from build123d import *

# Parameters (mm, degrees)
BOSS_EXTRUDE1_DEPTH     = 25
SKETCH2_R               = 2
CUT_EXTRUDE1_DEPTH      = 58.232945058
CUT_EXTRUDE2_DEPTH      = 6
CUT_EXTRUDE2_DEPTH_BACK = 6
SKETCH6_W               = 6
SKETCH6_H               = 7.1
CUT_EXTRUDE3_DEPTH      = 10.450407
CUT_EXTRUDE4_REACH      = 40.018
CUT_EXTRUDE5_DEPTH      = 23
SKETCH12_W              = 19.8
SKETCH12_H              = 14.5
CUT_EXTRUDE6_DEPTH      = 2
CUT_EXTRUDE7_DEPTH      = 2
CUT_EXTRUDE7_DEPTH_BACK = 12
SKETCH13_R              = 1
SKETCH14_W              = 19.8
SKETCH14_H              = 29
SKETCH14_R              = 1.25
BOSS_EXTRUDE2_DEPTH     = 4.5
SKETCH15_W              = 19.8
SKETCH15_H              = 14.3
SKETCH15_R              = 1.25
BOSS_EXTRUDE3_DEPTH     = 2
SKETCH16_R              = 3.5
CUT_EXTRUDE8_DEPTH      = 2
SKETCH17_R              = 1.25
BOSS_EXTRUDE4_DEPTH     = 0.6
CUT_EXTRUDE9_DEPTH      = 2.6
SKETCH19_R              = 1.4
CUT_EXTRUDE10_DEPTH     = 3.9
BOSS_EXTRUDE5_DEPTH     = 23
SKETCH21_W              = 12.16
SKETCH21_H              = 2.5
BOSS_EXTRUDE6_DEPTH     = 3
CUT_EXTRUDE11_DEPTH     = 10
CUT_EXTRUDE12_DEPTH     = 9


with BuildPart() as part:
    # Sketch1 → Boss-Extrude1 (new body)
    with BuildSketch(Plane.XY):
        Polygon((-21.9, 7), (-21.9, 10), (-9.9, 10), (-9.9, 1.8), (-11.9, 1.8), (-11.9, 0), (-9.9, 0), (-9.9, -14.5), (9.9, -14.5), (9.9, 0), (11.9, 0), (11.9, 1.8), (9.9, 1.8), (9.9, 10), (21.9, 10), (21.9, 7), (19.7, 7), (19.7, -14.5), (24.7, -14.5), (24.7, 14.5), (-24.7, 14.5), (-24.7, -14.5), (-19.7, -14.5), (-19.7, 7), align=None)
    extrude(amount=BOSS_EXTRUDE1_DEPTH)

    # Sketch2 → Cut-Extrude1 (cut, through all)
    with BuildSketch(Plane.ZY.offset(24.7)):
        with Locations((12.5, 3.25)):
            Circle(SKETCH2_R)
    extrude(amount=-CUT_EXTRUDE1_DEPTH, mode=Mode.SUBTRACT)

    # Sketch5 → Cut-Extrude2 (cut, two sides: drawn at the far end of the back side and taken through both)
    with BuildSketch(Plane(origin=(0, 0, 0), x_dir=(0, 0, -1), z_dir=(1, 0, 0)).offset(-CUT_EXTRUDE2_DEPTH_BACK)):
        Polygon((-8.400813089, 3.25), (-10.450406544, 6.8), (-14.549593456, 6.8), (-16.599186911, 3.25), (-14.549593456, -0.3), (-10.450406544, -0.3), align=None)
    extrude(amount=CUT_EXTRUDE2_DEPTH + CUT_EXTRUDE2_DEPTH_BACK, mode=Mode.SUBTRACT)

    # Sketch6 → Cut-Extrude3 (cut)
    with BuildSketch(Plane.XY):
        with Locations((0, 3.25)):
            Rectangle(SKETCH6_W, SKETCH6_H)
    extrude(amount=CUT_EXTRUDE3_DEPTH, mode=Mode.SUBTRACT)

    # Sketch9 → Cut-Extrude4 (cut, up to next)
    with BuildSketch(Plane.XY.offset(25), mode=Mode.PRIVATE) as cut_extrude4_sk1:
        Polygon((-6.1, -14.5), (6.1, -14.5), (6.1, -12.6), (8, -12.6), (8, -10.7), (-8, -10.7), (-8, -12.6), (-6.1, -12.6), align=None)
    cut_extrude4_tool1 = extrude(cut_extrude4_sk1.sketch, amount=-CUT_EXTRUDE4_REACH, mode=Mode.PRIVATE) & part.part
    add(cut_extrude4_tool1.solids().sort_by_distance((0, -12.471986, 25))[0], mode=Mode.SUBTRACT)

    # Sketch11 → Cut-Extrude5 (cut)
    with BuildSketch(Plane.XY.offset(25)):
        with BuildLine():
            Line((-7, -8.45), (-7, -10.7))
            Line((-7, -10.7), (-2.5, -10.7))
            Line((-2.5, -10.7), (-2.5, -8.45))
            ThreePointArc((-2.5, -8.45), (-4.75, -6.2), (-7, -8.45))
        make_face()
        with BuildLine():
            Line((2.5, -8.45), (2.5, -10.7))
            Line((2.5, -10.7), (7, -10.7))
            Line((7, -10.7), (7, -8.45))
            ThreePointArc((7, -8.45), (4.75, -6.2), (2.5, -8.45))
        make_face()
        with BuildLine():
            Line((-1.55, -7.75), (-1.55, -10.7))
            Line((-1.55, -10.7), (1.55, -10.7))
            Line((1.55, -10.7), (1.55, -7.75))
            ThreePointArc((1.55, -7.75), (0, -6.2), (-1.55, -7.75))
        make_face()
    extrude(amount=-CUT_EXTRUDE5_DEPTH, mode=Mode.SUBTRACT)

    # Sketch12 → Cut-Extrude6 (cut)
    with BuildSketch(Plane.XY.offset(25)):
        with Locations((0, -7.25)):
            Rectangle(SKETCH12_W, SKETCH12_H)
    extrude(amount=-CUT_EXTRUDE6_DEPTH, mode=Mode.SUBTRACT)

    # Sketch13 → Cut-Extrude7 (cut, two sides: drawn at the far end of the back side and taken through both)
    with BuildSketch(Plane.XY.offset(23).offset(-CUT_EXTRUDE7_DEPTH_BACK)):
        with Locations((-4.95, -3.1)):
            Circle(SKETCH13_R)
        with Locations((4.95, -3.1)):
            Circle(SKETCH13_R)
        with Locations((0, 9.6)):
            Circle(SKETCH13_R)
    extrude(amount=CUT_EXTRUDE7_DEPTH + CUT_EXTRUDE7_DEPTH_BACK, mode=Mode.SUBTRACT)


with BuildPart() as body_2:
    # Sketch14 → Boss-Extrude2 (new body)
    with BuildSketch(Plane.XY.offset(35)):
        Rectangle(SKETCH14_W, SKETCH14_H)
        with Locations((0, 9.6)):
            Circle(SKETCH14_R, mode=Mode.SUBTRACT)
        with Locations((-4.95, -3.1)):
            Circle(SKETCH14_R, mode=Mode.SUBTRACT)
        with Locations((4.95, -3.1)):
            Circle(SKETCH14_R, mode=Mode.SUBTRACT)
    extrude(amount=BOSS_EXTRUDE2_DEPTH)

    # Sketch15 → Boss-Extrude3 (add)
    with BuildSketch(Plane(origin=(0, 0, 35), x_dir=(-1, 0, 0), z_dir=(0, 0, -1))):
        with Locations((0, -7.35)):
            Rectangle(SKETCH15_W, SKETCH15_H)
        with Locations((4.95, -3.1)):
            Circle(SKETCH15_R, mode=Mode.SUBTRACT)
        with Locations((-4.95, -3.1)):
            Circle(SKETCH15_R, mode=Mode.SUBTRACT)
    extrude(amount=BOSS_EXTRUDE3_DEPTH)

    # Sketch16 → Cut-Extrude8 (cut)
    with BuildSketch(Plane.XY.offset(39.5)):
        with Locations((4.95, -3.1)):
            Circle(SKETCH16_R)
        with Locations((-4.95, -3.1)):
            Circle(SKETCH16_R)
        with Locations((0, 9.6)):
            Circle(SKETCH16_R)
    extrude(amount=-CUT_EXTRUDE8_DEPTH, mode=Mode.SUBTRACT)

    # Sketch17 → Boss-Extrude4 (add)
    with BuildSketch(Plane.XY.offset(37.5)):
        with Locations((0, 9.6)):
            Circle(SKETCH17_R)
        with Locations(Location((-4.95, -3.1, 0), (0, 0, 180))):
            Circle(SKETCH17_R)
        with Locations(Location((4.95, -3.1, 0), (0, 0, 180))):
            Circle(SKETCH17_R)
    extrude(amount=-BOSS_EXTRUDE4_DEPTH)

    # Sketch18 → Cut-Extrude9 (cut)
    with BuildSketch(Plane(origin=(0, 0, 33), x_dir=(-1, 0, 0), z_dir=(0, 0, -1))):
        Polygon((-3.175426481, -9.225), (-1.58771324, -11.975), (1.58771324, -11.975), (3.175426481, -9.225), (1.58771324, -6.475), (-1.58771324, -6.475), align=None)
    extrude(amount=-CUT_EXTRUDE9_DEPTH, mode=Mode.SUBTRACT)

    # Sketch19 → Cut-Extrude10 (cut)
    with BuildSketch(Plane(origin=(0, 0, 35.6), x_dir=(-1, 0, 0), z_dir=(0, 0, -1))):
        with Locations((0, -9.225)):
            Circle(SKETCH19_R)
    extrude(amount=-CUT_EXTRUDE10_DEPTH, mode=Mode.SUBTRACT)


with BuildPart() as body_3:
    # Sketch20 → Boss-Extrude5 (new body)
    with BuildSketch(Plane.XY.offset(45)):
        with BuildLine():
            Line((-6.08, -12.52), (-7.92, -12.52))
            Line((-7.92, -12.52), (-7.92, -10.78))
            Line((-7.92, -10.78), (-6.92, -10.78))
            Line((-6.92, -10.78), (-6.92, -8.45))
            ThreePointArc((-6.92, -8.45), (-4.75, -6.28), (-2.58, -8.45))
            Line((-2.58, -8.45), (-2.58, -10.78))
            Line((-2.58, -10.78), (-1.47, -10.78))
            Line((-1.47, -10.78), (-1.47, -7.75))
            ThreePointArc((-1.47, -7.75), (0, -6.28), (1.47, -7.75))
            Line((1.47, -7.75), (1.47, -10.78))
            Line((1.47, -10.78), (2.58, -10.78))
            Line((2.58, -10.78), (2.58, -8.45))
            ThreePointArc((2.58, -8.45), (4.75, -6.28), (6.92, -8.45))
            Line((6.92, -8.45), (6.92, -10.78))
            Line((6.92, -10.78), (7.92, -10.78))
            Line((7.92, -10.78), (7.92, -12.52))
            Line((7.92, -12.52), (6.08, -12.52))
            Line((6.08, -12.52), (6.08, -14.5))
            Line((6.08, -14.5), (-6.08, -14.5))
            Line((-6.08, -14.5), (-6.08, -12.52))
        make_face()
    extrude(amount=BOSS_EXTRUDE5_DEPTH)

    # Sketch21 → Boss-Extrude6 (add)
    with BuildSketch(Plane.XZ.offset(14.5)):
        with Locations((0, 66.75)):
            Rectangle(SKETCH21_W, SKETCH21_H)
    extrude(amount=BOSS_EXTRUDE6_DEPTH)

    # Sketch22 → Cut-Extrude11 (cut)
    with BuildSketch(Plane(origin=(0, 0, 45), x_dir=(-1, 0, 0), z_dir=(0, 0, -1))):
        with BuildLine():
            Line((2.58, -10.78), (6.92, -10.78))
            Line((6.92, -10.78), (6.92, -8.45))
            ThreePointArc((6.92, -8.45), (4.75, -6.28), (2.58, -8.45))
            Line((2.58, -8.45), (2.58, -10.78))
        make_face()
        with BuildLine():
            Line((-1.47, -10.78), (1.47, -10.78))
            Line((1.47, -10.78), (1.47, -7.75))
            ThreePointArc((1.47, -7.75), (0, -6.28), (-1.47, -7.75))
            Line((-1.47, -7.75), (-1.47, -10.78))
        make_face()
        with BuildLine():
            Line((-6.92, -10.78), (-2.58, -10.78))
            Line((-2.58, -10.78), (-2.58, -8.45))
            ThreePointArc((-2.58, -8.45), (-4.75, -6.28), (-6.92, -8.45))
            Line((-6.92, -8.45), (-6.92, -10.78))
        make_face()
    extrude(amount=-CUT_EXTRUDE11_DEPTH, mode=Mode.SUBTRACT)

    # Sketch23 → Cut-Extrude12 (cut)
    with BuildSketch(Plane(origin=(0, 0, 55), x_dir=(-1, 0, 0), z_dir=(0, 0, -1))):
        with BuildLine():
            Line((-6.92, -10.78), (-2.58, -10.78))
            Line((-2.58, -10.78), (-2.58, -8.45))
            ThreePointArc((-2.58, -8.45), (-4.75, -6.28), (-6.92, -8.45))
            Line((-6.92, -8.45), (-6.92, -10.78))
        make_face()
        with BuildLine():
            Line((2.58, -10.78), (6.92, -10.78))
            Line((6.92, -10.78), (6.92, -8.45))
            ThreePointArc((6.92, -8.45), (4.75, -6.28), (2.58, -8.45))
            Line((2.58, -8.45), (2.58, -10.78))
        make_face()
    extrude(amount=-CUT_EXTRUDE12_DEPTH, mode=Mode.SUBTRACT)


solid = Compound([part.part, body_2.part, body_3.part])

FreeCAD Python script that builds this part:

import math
import FreeCAD as App
import Part
import Sketcher

V = App.Vector
Q = App.Units.Quantity


def add_polygon(sketch, points):
    """Adds a closed chain of lines whose ends are joined by coincident constraints."""
    first, n = sketch.GeometryCount, len(points)
    for a, b in zip(points, points[1:] + points[:1]):
        sketch.addGeometry(Part.LineSegment(App.Vector(*a, 0), App.Vector(*b, 0)), False)
    for i in range(n):
        sketch.addConstraint(Sketcher.Constraint("Coincident", first + i, 2, first + (i + 1) % n, 1))

doc = App.newDocument("Part")
body = doc.addObject("PartDesign::Body", "Body")

# Sketch on XY plane
sketch1 = body.newObject("Sketcher::SketchObject", "Sketch")
sketch1.AttachmentSupport = (doc.getObject("XY_Plane"), [""])
sketch1.MapMode = "FlatFace"
add_polygon(sketch1, [(-21.9, 7), (-21.9, 10), (-9.9, 10), (-9.9, 1.8), (-11.9, 1.8), (-11.9, 0), (-9.9, 0), (-9.9, -14.5), (9.9, -14.5), (9.9, 0), (11.9, 0), (11.9, 1.8), (9.9, 1.8), (9.9, 10), (21.9, 10), (21.9, 7), (19.7, 7), (19.7, -14.5), (24.7, -14.5), (24.7, 14.5), (-24.7, 14.5), (-24.7, -14.5), (-19.7, -14.5), (-19.7, 7)])  # lines 0-23
sketch1.addConstraint([
    Sketcher.Constraint("Vertical", 0),
    Sketcher.Constraint("Horizontal", 1),
    Sketcher.Constraint("Vertical", 2),
    Sketcher.Constraint("Horizontal", 3),
    Sketcher.Constraint("Vertical", 4),
    Sketcher.Constraint("Horizontal", 5),
    Sketcher.Constraint("Vertical", 6),
    Sketcher.Constraint("Horizontal", 7),
    Sketcher.Constraint("Vertical", 8),
    Sketcher.Constraint("Horizontal", 9),
    Sketcher.Constraint("Vertical", 10),
    Sketcher.Constraint("Horizontal", 11),
    Sketcher.Constraint("Vertical", 12),
    Sketcher.Constraint("Horizontal", 13),
    Sketcher.Constraint("Vertical", 14),
    Sketcher.Constraint("Horizontal", 15),
    Sketcher.Constraint("Vertical", 16),
    Sketcher.Constraint("Horizontal", 17),
    Sketcher.Constraint("Vertical", 18),
    Sketcher.Constraint("Horizontal", 19),
    Sketcher.Constraint("Vertical", 20),
    Sketcher.Constraint("Horizontal", 21),
    Sketcher.Constraint("Vertical", 22),
    Sketcher.Constraint("Horizontal", 23),
    Sketcher.Constraint("Symmetric", 5, 2, 8, 2, -1, 1),
    Sketcher.Constraint("Symmetric", 17, 2, 19, 2, -1, 1),
    Sketcher.Constraint("Symmetric", 4, 2, 9, 2, -2),
    Sketcher.Constraint("Symmetric", 2, 2, 11, 2, -2),
    Sketcher.Constraint("Symmetric", 0, 2, 13, 2, -2),
    Sketcher.Constraint("Symmetric", 16, 2, 21, 2, -2),
    Sketcher.Constraint("Horizontal", 7, 2, 16, 2),
    Sketcher.Constraint("Horizontal", 15, 2, 22, 2),
    Sketcher.Constraint("Vertical", 2, 2, 5, 2),
    Sketcher.Constraint("DistanceX", 1, 1, 1, 2, Q("12 mm")),
    Sketcher.Constraint("DistanceX", 3, 2, 3, 1, Q("2 mm")),
    Sketcher.Constraint("DistanceX", 17, 1, 17, 2, Q("5 mm")),
    Sketcher.Constraint("DistanceY", 0, 1, 0, 2, Q("3 mm")),
    Sketcher.Constraint("DistanceY", 18, 1, 18, 2, Q("29 mm")),
    Sketcher.Constraint("DistanceX", 7, 1, 7, 2, Q("19.8 mm")),
    Sketcher.Constraint("DistanceX", 15, 2, 15, 1, Q("2.2 mm")),
    Sketcher.Constraint("DistanceY", 2, 2, 2, 1, Q("8.2 mm")),
    Sketcher.Constraint("DistanceY", 4, 2, 4, 1, Q("1.8 mm")),
])
pad1 = body.newObject("PartDesign::Pad", "Pad")
pad1.Profile = sketch1
pad1.Length = 25

# Sketch on YZ plane
sketch2 = body.newObject("Sketcher::SketchObject", "Sketch001")
sketch2.AttachmentSupport = (doc.getObject("YZ_Plane"), [""])
sketch2.MapMode = "FlatFace"
sketch2.AttachmentOffset = App.Placement(V(0, 0, -24.7), App.Rotation())
sketch2.addGeometry(Part.Circle(V(3.2, 12.5, 0), V(0, 0, 1), 2), False)
sketch2.addConstraint([
    Sketcher.Constraint("Diameter", 0, Q("4 mm")),
    Sketcher.Constraint("DistanceY", -1, 1, 0, 3, Q("12.5 mm")),
    Sketcher.Constraint("DistanceX", -1, 1, 0, 3, Q("3.25 mm")),
])
pocket1 = body.newObject("PartDesign::Pocket", "Pocket")
pocket1.Profile = sketch2
pocket1.Type = "ThroughAll"
pocket1.Reversed = True

# Sketch on YZ plane
sketch3 = body.newObject("Sketcher::SketchObject", "Sketch002")
sketch3.AttachmentSupport = (doc.getObject("YZ_Plane"), [""])
sketch3.MapMode = "FlatFace"
add_polygon(sketch3, [(3.2, 8.4), (6.8, 10.5), (6.8, 14.5), (3.2, 16.6), (-0.3, 14.5), (-0.3, 10.5)])  # lines 0-5
sketch3.addConstraint([
    Sketcher.Constraint("Vertical", 1),
    Sketcher.Constraint("Vertical", 4),
    Sketcher.Constraint("Parallel", 0, 3),
    Sketcher.Constraint("Parallel", 2, 5),
    Sketcher.Constraint("Horizontal", 1, 2, 3, 2),
    Sketcher.Constraint("Horizontal", 0, 2, 4, 2),
    Sketcher.Constraint("Vertical", 2, 2, 5, 2),
    Sketcher.Constraint("Angle", 0, Q("30 deg")),
    Sketcher.Constraint("DistanceX", -1, 1, 0, 2, Q("6.8 mm")),
    Sketcher.Constraint("DistanceX", 3, 2, -1, 1, Q("0.3 mm")),
    Sketcher.Constraint("DistanceY", 1, 1, 1, 2, Q("4.099187 mm")),
    Sketcher.Constraint("DistanceY", -1, 1, 0, 2, Q("10.450407 mm")),
])
pocket2 = body.newObject("PartDesign::Pocket", "Pocket001")
pocket2.Profile = sketch3
pocket2.Type = "TwoLengths"
pocket2.Length = 6
pocket2.Length2 = 6
pocket2.Reversed = True

# Sketch on XY plane
sketch4 = body.newObject("Sketcher::SketchObject", "Sketch003")
sketch4.AttachmentSupport = (doc.getObject("XY_Plane"), [""])
sketch4.MapMode = "FlatFace"
add_polygon(sketch4, [(-3, 7), (-3, 0), (3, 0), (3, 7)])  # lines 0-3
sketch4.addConstraint([
    Sketcher.Constraint("Vertical", 0),
    Sketcher.Constraint("Horizontal", 1),
    Sketcher.Constraint("Vertical", 2),
    Sketcher.Constraint("Horizontal", 3),
    Sketcher.Constraint("DistanceX", 1, 1, 1, 2, Q("6 mm")),
    Sketcher.Constraint("DistanceY", 0, 2, 0, 1, Q("7.1 mm")),
    Sketcher.Constraint("DistanceX", 0, 2, -1, 1, Q("3 mm")),
    Sketcher.Constraint("DistanceY", 0, 2, -1, 1, Q("0.3 mm")),
])
pocket3 = body.newObject("PartDesign::Pocket", "Pocket002")
pocket3.Profile = sketch4
pocket3.Length = 10.450407
pocket3.Reversed = True

# Sketch on XY plane
sketch5 = body.newObject("Sketcher::SketchObject", "Sketch004")
sketch5.AttachmentSupport = (doc.getObject("XY_Plane"), [""])
sketch5.MapMode = "FlatFace"
sketch5.AttachmentOffset = App.Placement(V(0, 0, 25), App.Rotation())
add_polygon(sketch5, [(-6.1, -14.5), (6.1, -14.5), (6.1, -12.6), (8, -12.6), (8, -10.7), (-8, -10.7), (-8, -12.6), (-6.1, -12.6)])  # lines 0-7
sketch5.addConstraint([
    Sketcher.Constraint("Horizontal", 0),
    Sketcher.Constraint("Vertical", 1),
    Sketcher.Constraint("Horizontal", 2),
    Sketcher.Constraint("Vertical", 3),
    Sketcher.Constraint("Horizontal", 4),
    Sketcher.Constraint("Vertical", 5),
    Sketcher.Constraint("Horizontal", 6),
    Sketcher.Constraint("Vertical", 7),
    Sketcher.Constraint("Symmetric", 2, 2, 5, 2, -2),
    Sketcher.Constraint("Equal", 2, 6),
    Sketcher.Constraint("Equal", 6, 1),
    Sketcher.Constraint("Equal", 1, 3),
    Sketcher.Constraint("DistanceX", 4, 2, 4, 1, Q("16 mm")),
    Sketcher.Constraint("DistanceX", 0, 1, 0, 2, Q("12.2 mm")),
    Sketcher.Constraint("DistanceY", 0, 2, -1, 1, Q("14.5 mm")),
])
pocket4 = body.newObject("PartDesign::Pocket", "Pocket003")
pocket4.Profile = sketch5
pocket4.Type = "UpToFirst"

# Sketch on XY plane
sketch6 = body.newObject("Sketcher::SketchObject", "Sketch005")
sketch6.AttachmentSupport = (doc.getObject("XY_Plane"), [""])
sketch6.MapMode = "FlatFace"
sketch6.AttachmentOffset = App.Placement(V(0, 0, 25), App.Rotation())
sketch6.addGeometry([
    Part.LineSegment(V(-7, -8.4, 0), V(-7, -10.7, 0)),  # 0
    Part.LineSegment(V(-7, -10.7, 0), V(-2.5, -10.7, 0)),  # 1
    Part.LineSegment(V(-2.5, -10.7, 0), V(-2.5, -8.4, 0)),  # 2
    Part.ArcOfCircle(Part.Circle(V(-4.8, -8.4, 0), V(0, 0, 1), 2.2), math.radians(0), math.radians(180)),  # 3
    Part.LineSegment(V(2.5, -8.4, 0), V(2.5, -10.7, 0)),  # 4
    Part.LineSegment(V(2.5, -10.7, 0), V(7, -10.7, 0)),  # 5
    Part.LineSegment(V(7, -10.7, 0), V(7, -8.4, 0)),  # 6
    Part.ArcOfCircle(Part.Circle(V(4.8, -8.4, 0), V(0, 0, 1), 2.2), math.radians(0), math.radians(180)),  # 7
    Part.LineSegment(V(-1.6, -7.8, 0), V(-1.6, -10.7, 0)),  # 8
    Part.LineSegment(V(-1.6, -10.7, 0), V(1.6, -10.7, 0)),  # 9
    Part.LineSegment(V(1.6, -10.7, 0), V(1.6, -7.8, 0)),  # 10
    Part.ArcOfCircle(Part.Circle(V(0, -7.8, 0), V(0, 0, 1), 1.6), math.radians(0), math.radians(180)),  # 11
], False)
sketch6.addConstraint([
    Sketcher.Constraint("Coincident", 0, 2, 1, 1),
    Sketcher.Constraint("Coincident", 1, 2, 2, 1),
    Sketcher.Constraint("Tangent", 2, 2, 3, 1),
    Sketcher.Constraint("Tangent", 3, 2, 0, 1),
    Sketcher.Constraint("Coincident", 4, 2, 5, 1),
    Sketcher.Constraint("Coincident", 5, 2, 6, 1),
    Sketcher.Constraint("Tangent", 6, 2, 7, 1),
    Sketcher.Constraint("Tangent", 7, 2, 4, 1),
    Sketcher.Constraint("Coincident", 8, 2, 9, 1),
    Sketcher.Constraint("Coincident", 9, 2, 10, 1),
    Sketcher.Constraint("Tangent", 10, 2, 11, 1),
    Sketcher.Constraint("Tangent", 11, 2, 8, 1),
    Sketcher.Constraint("Vertical", 0),
    Sketcher.Constraint("Horizontal", 1),
    Sketcher.Constraint("Vertical", 2),
    Sketcher.Constraint("Vertical", 4),
    Sketcher.Constraint("Horizontal", 5),
    Sketcher.Constraint("Vertical", 6),
    Sketcher.Constraint("Vertical", 8),
    Sketcher.Constraint("Horizontal", 9),
    Sketcher.Constraint("Vertical", 10),
    Sketcher.Constraint("Equal", 3, 7),
    Sketcher.Constraint("Symmetric", 3, 3, 7, 3, -2),
    Sketcher.Constraint("PointOnObject", 11, 3, -2),
    Sketcher.Constraint("Horizontal", 1, 2, 4, 2),
    Sketcher.Constraint("Horizontal", 5, 2, 8, 2),
    Sketcher.Constraint("Radius", 3, Q("2.25 mm")),
    Sketcher.Constraint("Radius", 11, Q("1.55 mm")),
    Sketcher.Constraint("DistanceX", 0, 2, -1, 1, Q("7 mm")),
    Sketcher.Constraint("DistanceY", 0, 2, 0, 1, Q("2.25 mm")),
    Sketcher.Constraint("DistanceY", 8, 2, 8, 1, Q("2.95 mm")),
    Sketcher.Constraint("DistanceY", 0, 2, -1, 1, Q("10.7 mm")),
])
pocket5 = body.newObject("PartDesign::Pocket", "Pocket004")
pocket5.Profile = sketch6
pocket5.Length = 23

# Sketch on XY plane
sketch7 = body.newObject("Sketcher::SketchObject", "Sketch006")
sketch7.AttachmentSupport = (doc.getObject("XY_Plane"), [""])
sketch7.MapMode = "FlatFace"
sketch7.AttachmentOffset = App.Placement(V(0, 0, 25), App.Rotation())
add_polygon(sketch7, [(-10, 0), (-10, -14), (10, -14), (10, 0)])  # lines 0-3
sketch7.addConstraint([
    Sketcher.Constraint("Vertical", 0),
    Sketcher.Constraint("Horizontal", 1),
    Sketcher.Constraint("Vertical", 2),
    Sketcher.Constraint("Horizontal", 3),
    Sketcher.Constraint("Symmetric", 2, 2, 3, 2, -1, 1),
    Sketcher.Constraint("DistanceX", 1, 1, 1, 2, Q("19.8 mm")),
    Sketcher.Constraint("DistanceY", 0, 2, 0, 1, Q("14.5 mm")),
])
pocket6 = body.newObject("PartDesign::Pocket", "Pocket005")
pocket6.Profile = sketch7
pocket6.Length = 2

# Sketch on XY plane
sketch8 = body.newObject("Sketcher::SketchObject", "Sketch007")
sketch8.AttachmentSupport = (doc.getObject("XY_Plane"), [""])
sketch8.MapMode = "FlatFace"
sketch8.AttachmentOffset = App.Placement(V(0, 0, 23), App.Rotation())
sketch8.addGeometry([
    Part.Circle(V(-5, -3.1, 0), V(0, 0, 1), 1),
    Part.Circle(V(5, -3.1, 0), V(0, 0, 1), 1),
    Part.Circle(V(0, 9.6, 0), V(0, 0, 1), 1),
], False)
sketch8.addConstraint([
    Sketcher.Constraint("Equal", 0, 1),
    Sketcher.Constraint("Equal", 1, 2),
    Sketcher.Constraint("Symmetric", 0, 3, 1, 3, -2),
    Sketcher.Constraint("PointOnObject", 2, 3, -2),
    Sketcher.Constraint("Diameter", 0, Q("2 mm")),
    Sketcher.Constraint("DistanceY", 0, 3, -1, 1, Q("3.1 mm")),
    Sketcher.Constraint("DistanceY", -1, 1, 2, 3, Q("9.6 mm")),
    Sketcher.Constraint("DistanceX", 0, 3, 1, 3, Q("9.9 mm")),
])
pocket7 = body.newObject("PartDesign::Pocket", "Pocket006")
pocket7.Profile = sketch8
pocket7.Type = "TwoLengths"
pocket7.Length = 2
pocket7.Length2 = 12
pocket7.Reversed = True
body2 = doc.addObject("PartDesign::Body", "Body001")

# Sketch on XY plane
sketch9 = body2.newObject("Sketcher::SketchObject", "Sketch008")
sketch9.AttachmentSupport = (doc.getObject("XY_Plane001"), [""])
sketch9.MapMode = "FlatFace"
sketch9.AttachmentOffset = App.Placement(V(0, 0, 35), App.Rotation())
add_polygon(sketch9, [(-9.9, 14.5), (-9.9, -14.5), (9.9, -14.5), (9.9, 14.5)])  # lines 0-3
sketch9.addGeometry(Part.Circle(V(-5, -3.1, 0), V(0, 0, 1), 1.2), False)  # 4
sketch9.addGeometry(Part.Circle(V(5, -3.1, 0), V(0, 0, 1), 1.2), False)  # 5
sketch9.addGeometry(Part.Circle(V(0, 9.6, 0), V(0, 0, 1), 1.2), False)  # 6
sketch9.addConstraint([
    Sketcher.Constraint("Vertical", 0),
    Sketcher.Constraint("Horizontal", 1),
    Sketcher.Constraint("Vertical", 2),
    Sketcher.Constraint("Horizontal", 3),
    Sketcher.Constraint("Equal", 4, 5),
    Sketcher.Constraint("Equal", 5, 6),
    Sketcher.Constraint("Symmetric", 0, 2, 2, 2, -1, 1),
    Sketcher.Constraint("Symmetric", 4, 3, 5, 3, -2),
    Sketcher.Constraint("PointOnObject", 6, 3, -2),
    Sketcher.Constraint("Diameter", 4, Q("2.5 mm")),
    Sketcher.Constraint("DistanceY", 0, 2, 0, 1, Q("29 mm")),
    Sketcher.Constraint("DistanceX", 1, 1, 1, 2, Q("19.8 mm")),
    Sketcher.Constraint("DistanceY", 4, 3, -1, 1, Q("3.1 mm")),
    Sketcher.Constraint("DistanceY", -1, 1, 6, 3, Q("9.6 mm")),
    Sketcher.Constraint("DistanceX", 4, 3, 5, 3, Q("9.9 mm")),
])
pad2 = body2.newObject("PartDesign::Pad", "Pad001")
pad2.Profile = sketch9
pad2.Length = 4.5

# Sketch on XY plane
sketch10 = body2.newObject("Sketcher::SketchObject", "Sketch009")
sketch10.AttachmentSupport = (doc.getObject("XY_Plane001"), [""])
sketch10.MapMode = "FlatFace"
sketch10.AttachmentOffset = App.Placement(V(0, 0, 35), App.Rotation())
add_polygon(sketch10, [(9.9, -0.2), (9.9, -14.5), (-9.9, -14.5), (-9.9, -0.2)])  # lines 0-3
sketch10.addGeometry(Part.Circle(V(5, -3.1, 0), V(0, 0, 1), 1.2), False)  # 4
sketch10.addGeometry(Part.Circle(V(-5, -3.1, 0), V(0, 0, 1), 1.2), False)  # 5
sketch10.addConstraint([
    Sketcher.Constraint("Vertical", 0),
    Sketcher.Constraint("Horizontal", 1),
    Sketcher.Constraint("Vertical", 2),
    Sketcher.Constraint("Horizontal", 3),
    Sketcher.Constraint("Equal", 4, 5),
    Sketcher.Constraint("Symmetric", 4, 3, 5, 3, -2),
    Sketcher.Constraint("Diameter", 4, Q("2.5 mm")),
    Sketcher.Constraint("DistanceX", 1, 2, 1, 1, Q("19.8 mm")),
    Sketcher.Constraint("DistanceY", 0, 2, 0, 1, Q("14.3 mm")),
    Sketcher.Constraint("DistanceY", 4, 3, -1, 1, Q("3.1 mm")),
    Sketcher.Constraint("DistanceX", -1, 1, 0, 2, Q("9.9 mm")),
    Sketcher.Constraint("DistanceY", 0, 2, -1, 1, Q("14.5 mm")),
    Sketcher.Constraint("DistanceX", 5, 3, 4, 3, Q("9.9 mm")),
])
pad3 = body2.newObject("PartDesign::Pad", "Pad002")
pad3.Profile = sketch10
pad3.Length = 2
pad3.Reversed = True

# Sketch on XY plane
sketch11 = body2.newObject("Sketcher::SketchObject", "Sketch010")
sketch11.AttachmentSupport = (doc.getObject("XY_Plane001"), [""])
sketch11.MapMode = "FlatFace"
sketch11.AttachmentOffset = App.Placement(V(0, 0, 39.5), App.Rotation())
sketch11.addGeometry([
    Part.Circle(V(5, -3.1, 0), V(0, 0, 1), 3.5),
    Part.Circle(V(-5, -3.1, 0), V(0, 0, 1), 3.5),
    Part.Circle(V(0, 9.6, 0), V(0, 0, 1), 3.5),
], False)
sketch11.addConstraint([
    Sketcher.Constraint("Equal", 0, 1),
    Sketcher.Constraint("Equal", 1, 2),
    Sketcher.Constraint("Symmetric", 0, 3, 1, 3, -2),
    Sketcher.Constraint("PointOnObject", 2, 3, -2),
    Sketcher.Constraint("Diameter", 0, Q("7 mm")),
    Sketcher.Constraint("DistanceY", 0, 3, -1, 1, Q("3.1 mm")),
    Sketcher.Constraint("DistanceY", -1, 1, 2, 3, Q("9.6 mm")),
    Sketcher.Constraint("DistanceX", 1, 3, 0, 3, Q("9.9 mm")),
])
pocket8 = body2.newObject("PartDesign::Pocket", "Pocket007")
pocket8.Profile = sketch11
pocket8.Length = 2

# Sketch on XY plane
sketch12 = body2.newObject("Sketcher::SketchObject", "Sketch011")
sketch12.AttachmentSupport = (doc.getObject("XY_Plane001"), [""])
sketch12.MapMode = "FlatFace"
sketch12.AttachmentOffset = App.Placement(V(0, 0, 37.5), App.Rotation())
sketch12.addGeometry([
    Part.Circle(V(0, 9.6, 0), V(0, 0, 1), 1.2),
    Part.Circle(V(-5, -3.1, 0), V(0, 0, 1), 1.2),
    Part.Circle(V(5, -3.1, 0), V(0, 0, 1), 1.2),
], False)
sketch12.addConstraint([
    Sketcher.Constraint("Equal", 0, 1),
    Sketcher.Constraint("Equal", 1, 2),
    Sketcher.Constraint("Symmetric", 1, 3, 2, 3, -2),
    Sketcher.Constraint("PointOnObject", 0, 3, -2),
    Sketcher.Constraint("Diameter", 0, Q("2.5 mm")),
    Sketcher.Constraint("DistanceY", -1, 1, 0, 3, Q("9.6 mm")),
    Sketcher.Constraint("DistanceY", 1, 3, -1, 1, Q("3.1 mm")),
    Sketcher.Constraint("DistanceX", 1, 3, 2, 3, Q("9.9 mm")),
])
pad4 = body2.newObject("PartDesign::Pad", "Pad003")
pad4.Profile = sketch12
pad4.Length = 0.6
pad4.Reversed = True

# Sketch on XY plane
sketch13 = body2.newObject("Sketcher::SketchObject", "Sketch012")
sketch13.AttachmentSupport = (doc.getObject("XY_Plane001"), [""])
sketch13.MapMode = "FlatFace"
sketch13.AttachmentOffset = App.Placement(V(0, 0, 33), App.Rotation())
add_polygon(sketch13, [(3.2, -9.2), (1.6, -12), (-1.6, -12), (-3.2, -9.2), (-1.6, -6.5), (1.6, -6.5)])  # lines 0-5
sketch13.addConstraint([
    Sketcher.Constraint("Horizontal", 1),
    Sketcher.Constraint("Horizontal", 4),
    Sketcher.Constraint("Symmetric", 2, 2, 5, 2, -2),
    Sketcher.Constraint("Parallel", 0, 3),
    Sketcher.Constraint("Parallel", 2, 5),
    Sketcher.Constraint("Vertical", 1, 2, 3, 2),
    Sketcher.Constraint("Vertical", 0, 2, 4, 2),
    Sketcher.Constraint("Angle", 0, Q("-120 deg")),
    Sketcher.Constraint("DistanceY", 1, 2, 3, 2, Q("5.5 mm")),
    Sketcher.Constraint("DistanceY", 0, 2, -1, 1, Q("11.975 mm")),
    Sketcher.Constraint("DistanceX", 1, 2, 1, 1, Q("3.175426 mm")),
])
pocket9 = body2.newObject("PartDesign::Pocket", "Pocket008")
pocket9.Profile = sketch13
pocket9.Length = 2.6
pocket9.Reversed = True

# Sketch on XY plane
sketch14 = body2.newObject("Sketcher::SketchObject", "Sketch013")
sketch14.AttachmentSupport = (doc.getObject("XY_Plane001"), [""])
sketch14.MapMode = "FlatFace"
sketch14.AttachmentOffset = App.Placement(V(0, 0, 35.6), App.Rotation())
sketch14.addGeometry(Part.Circle(V(0, -9.2, 0), V(0, 0, 1), 1.4), False)
sketch14.addConstraint([
    Sketcher.Constraint("PointOnObject", 0, 3, -2),
    Sketcher.Constraint("Diameter", 0, Q("2.8 mm")),
    Sketcher.Constraint("DistanceY", 0, 3, -1, 1, Q("9.225 mm")),
])
pocket10 = body2.newObject("PartDesign::Pocket", "Pocket009")
pocket10.Profile = sketch14
pocket10.Length = 3.9
pocket10.Reversed = True
body3 = doc.addObject("PartDesign::Body", "Body002")

# Sketch on XY plane
sketch15 = body3.newObject("Sketcher::SketchObject", "Sketch014")
sketch15.AttachmentSupport = (doc.getObject("XY_Plane002"), [""])
sketch15.MapMode = "FlatFace"
sketch15.AttachmentOffset = App.Placement(V(0, 0, 45), App.Rotation())
sketch15.addGeometry([
    Part.LineSegment(V(-7.9, -12.5, 0), V(-6.1, -12.5, 0)),  # 0
    Part.LineSegment(V(-6.1, -12.5, 0), V(-6.1, -14.5, 0)),  # 1
    Part.LineSegment(V(-6.1, -14.5, 0), V(6.1, -14.5, 0)),  # 2
    Part.LineSegment(V(6.1, -14.5, 0), V(6.1, -12.5, 0)),  # 3
    Part.LineSegment(V(6.1, -12.5, 0), V(7.9, -12.5, 0)),  # 4
    Part.LineSegment(V(7.9, -12.5, 0), V(7.9, -10.8, 0)),  # 5
    Part.LineSegment(V(7.9, -10.8, 0), V(6.9, -10.8, 0)),  # 6
    Part.LineSegment(V(6.9, -10.8, 0), V(6.9, -8.4, 0)),  # 7
    Part.ArcOfCircle(Part.Circle(V(4.8, -8.4, 0), V(0, 0, 1), 2.2), math.radians(0), math.radians(180)),  # 8
    Part.LineSegment(V(2.6, -8.4, 0), V(2.6, -10.8, 0)),  # 9
    Part.LineSegment(V(2.6, -10.8, 0), V(1.5, -10.8, 0)),  # 10
    Part.LineSegment(V(1.5, -10.8, 0), V(1.5, -7.8, 0)),  # 11
    Part.ArcOfCircle(Part.Circle(V(0, -7.8, 0), V(0, 0, 1), 1.5), math.radians(0), math.radians(180)),  # 12
    Part.LineSegment(V(-1.5, -7.8, 0), V(-1.5, -10.8, 0)),  # 13
    Part.LineSegment(V(-1.5, -10.8, 0), V(-2.6, -10.8, 0)),  # 14
    Part.LineSegment(V(-2.6, -10.8, 0), V(-2.6, -8.4, 0)),  # 15
    Part.ArcOfCircle(Part.Circle(V(-4.8, -8.4, 0), V(0, 0, 1), 2.2), math.radians(0), math.radians(180)),  # 16
    Part.LineSegment(V(-6.9, -8.4, 0), V(-6.9, -10.8, 0)),  # 17
    Part.LineSegment(V(-6.9, -10.8, 0), V(-7.9, -10.8, 0)),  # 18
    Part.LineSegment(V(-7.9, -10.8, 0), V(-7.9, -12.5, 0)),  # 19
], False)
sketch15.addConstraint([
    Sketcher.Constraint("Coincident", 0, 2, 1, 1),
    Sketcher.Constraint("Coincident", 1, 2, 2, 1),
    Sketcher.Constraint("Coincident", 2, 2, 3, 1),
    Sketcher.Constraint("Coincident", 3, 2, 4, 1),
    Sketcher.Constraint("Coincident", 4, 2, 5, 1),
    Sketcher.Constraint("Coincident", 5, 2, 6, 1),
    Sketcher.Constraint("Coincident", 6, 2, 7, 1),
    Sketcher.Constraint("Tangent", 7, 2, 8, 1),
    Sketcher.Constraint("Tangent", 8, 2, 9, 1),
    Sketcher.Constraint("Coincident", 9, 2, 10, 1),
    Sketcher.Constraint("Coincident", 10, 2, 11, 1),
    Sketcher.Constraint("Tangent", 11, 2, 12, 1),
    Sketcher.Constraint("Tangent", 12, 2, 13, 1),
    Sketcher.Constraint("Coincident", 13, 2, 14, 1),
    Sketcher.Constraint("Coincident", 14, 2, 15, 1),
    Sketcher.Constraint("Tangent", 15, 2, 16, 1),
    Sketcher.Constraint("Tangent", 16, 2, 17, 1),
    Sketcher.Constraint("Coincident", 17, 2, 18, 1),
    Sketcher.Constraint("Coincident", 18, 2, 19, 1),
    Sketcher.Constraint("Coincident", 19, 2, 0, 1),
    Sketcher.Constraint("Horizontal", 0),
    Sketcher.Constraint("Vertical", 1),
    Sketcher.Constraint("Horizontal", 2),
    Sketcher.Constraint("Vertical", 3),
    Sketcher.Constraint("Horizontal", 4),
    Sketcher.Constraint("Vertical", 5),
    Sketcher.Constraint("Horizontal", 6),
    Sketcher.Constraint("Vertical", 7),
    Sketcher.Constraint("Vertical", 9),
    Sketcher.Constraint("Horizontal", 10),
    Sketcher.Constraint("Vertical", 11),
    Sketcher.Constraint("Vertical", 13),
    Sketcher.Constraint("Horizontal", 14),
    Sketcher.Constraint("Vertical", 15),
    Sketcher.Constraint("Vertical", 17),
    Sketcher.Constraint("Horizontal", 18),
    Sketcher.Constraint("Vertical", 19),
    Sketcher.Constraint("Equal", 8, 16),
    Sketcher.Constraint("Symmetric", 8, 3, 16, 3, -2),
    Sketcher.Constraint("Symmetric", 0, 2, 3, 2, -2),
    Sketcher.Constraint("Symmetric", 10, 2, 13, 2, -2),
    Sketcher.Constraint("Symmetric", 5, 2, 18, 2, -2),
    Sketcher.Constraint("Horizontal", 6, 2, 9, 2),
    Sketcher.Constraint("DistanceX", 6, 2, 6, 1, Q("1 mm")),
    Sketcher.Constraint("Radius", 8, Q("2.17 mm")),
    Sketcher.Constraint("Radius", 12, Q("1.47 mm")),
    Sketcher.Constraint("DistanceX", 0, 1, 0, 2, Q("1.84 mm")),
    Sketcher.Constraint("DistanceX", 2, 1, 2, 2, Q("12.16 mm")),
    Sketcher.Constraint("DistanceY", 1, 2, 1, 1, Q("1.98 mm")),
    Sketcher.Constraint("DistanceY", 5, 1, 5, 2, Q("1.74 mm")),
    Sketcher.Constraint("DistanceY", 7, 1, 7, 2, Q("2.33 mm")),
    Sketcher.Constraint("DistanceY", 11, 1, 11, 2, Q("3.03 mm")),
    Sketcher.Constraint("DistanceY", 1, 2, -1, 1, Q("14.5 mm")),
])
pad5 = body3.newObject("PartDesign::Pad", "Pad004")
pad5.Profile = sketch15
pad5.Length = 23

# Sketch on XZ plane
sketch16 = body3.newObject("Sketcher::SketchObject", "Sketch015")
sketch16.AttachmentSupport = (doc.getObject("XZ_Plane002"), [""])
sketch16.MapMode = "FlatFace"
sketch16.AttachmentOffset = App.Placement(V(0, 0, 14.5), App.Rotation())
add_polygon(sketch16, [(-6.1, 68), (-6.1, 65.5), (6.1, 65.5), (6.1, 68)])  # lines 0-3
sketch16.addConstraint([
    Sketcher.Constraint("Vertical", 0),
    Sketcher.Constraint("Horizontal", 1),
    Sketcher.Constraint("Vertical", 2),
    Sketcher.Constraint("Horizontal", 3),
    Sketcher.Constraint("DistanceY", 0, 2, 0, 1, Q("2.5 mm")),
    Sketcher.Constraint("DistanceY", -1, 1, 2, 2, Q("68 mm")),
    Sketcher.Constraint("DistanceX", 1, 1, 1, 2, Q("12.16 mm")),
    Sketcher.Constraint("DistanceX", 0, 2, -1, 1, Q("6.08 mm")),
])
pad6 = body3.newObject("PartDesign::Pad", "Pad005")
pad6.Profile = sketch16
pad6.Length = 3

# Sketch on XY plane
sketch17 = body3.newObject("Sketcher::SketchObject", "Sketch016")
sketch17.AttachmentSupport = (doc.getObject("XY_Plane002"), [""])
sketch17.MapMode = "FlatFace"
sketch17.AttachmentOffset = App.Placement(V(0, 0, 45), App.Rotation())
sketch17.addGeometry([
    Part.LineSegment(V(-2.6, -10.8, 0), V(-6.9, -10.8, 0)),  # 0
    Part.LineSegment(V(-6.9, -10.8, 0), V(-6.9, -8.4, 0)),  # 1
    Part.ArcOfCircle(Part.Circle(V(-4.8, -8.4, 0), V(0, 0, 1), 2.2), math.radians(0), math.radians(180)),  # 2
    Part.LineSegment(V(-2.6, -8.4, 0), V(-2.6, -10.8, 0)),  # 3
    Part.LineSegment(V(1.5, -10.8, 0), V(-1.5, -10.8, 0)),  # 4
    Part.LineSegment(V(-1.5, -10.8, 0), V(-1.5, -7.8, 0)),  # 5
    Part.ArcOfCircle(Part.Circle(V(0, -7.8, 0), V(0, 0, 1), 1.5), math.radians(0), math.radians(180)),  # 6
    Part.LineSegment(V(1.5, -7.8, 0), V(1.5, -10.8, 0)),  # 7
    Part.LineSegment(V(6.9, -10.8, 0), V(2.6, -10.8, 0)),  # 8
    Part.LineSegment(V(2.6, -10.8, 0), V(2.6, -8.4, 0)),  # 9
    Part.ArcOfCircle(Part.Circle(V(4.8, -8.4, 0), V(0, 0, 1), 2.2), math.radians(0), math.radians(180)),  # 10
    Part.LineSegment(V(6.9, -8.4, 0), V(6.9, -10.8, 0)),  # 11
], False)
sketch17.addConstraint([
    Sketcher.Constraint("Coincident", 0, 2, 1, 1),
    Sketcher.Constraint("Tangent", 1, 2, 2, 2),
    Sketcher.Constraint("Tangent", 2, 1, 3, 1),
    Sketcher.Constraint("Coincident", 3, 2, 0, 1),
    Sketcher.Constraint("Coincident", 4, 2, 5, 1),
    Sketcher.Constraint("Tangent", 5, 2, 6, 2),
    Sketcher.Constraint("Tangent", 6, 1, 7, 1),
    Sketcher.Constraint("Coincident", 7, 2, 4, 1),
    Sketcher.Constraint("Coincident", 8, 2, 9, 1),
    Sketcher.Constraint("Tangent", 9, 2, 10, 2),
    Sketcher.Constraint("Tangent", 10, 1, 11, 1),
    Sketcher.Constraint("Coincident", 11, 2, 8, 1),
    Sketcher.Constraint("Horizontal", 0),
    Sketcher.Constraint("Vertical", 1),
    Sketcher.Constraint("Vertical", 3),
    Sketcher.Constraint("Horizontal", 4),
    Sketcher.Constraint("Vertical", 5),
    Sketcher.Constraint("Vertical", 7),
    Sketcher.Constraint("Horizontal", 8),
    Sketcher.Constraint("Vertical", 9),
    Sketcher.Constraint("Vertical", 11),
    Sketcher.Constraint("Equal", 2, 10),
    Sketcher.Constraint("Symmetric", 2, 3, 10, 3, -2),
    Sketcher.Constraint("PointOnObject", 6, 3, -2),
    Sketcher.Constraint("Horizontal", 3, 2, 4, 2),
    Sketcher.Constraint("Horizontal", 7, 2, 8, 2),
    Sketcher.Constraint("Radius", 2, Q("2.17 mm")),
    Sketcher.Constraint("Radius", 6, Q("1.47 mm")),
    Sketcher.Constraint("DistanceY", 1, 1, 1, 2, Q("2.33 mm")),
    Sketcher.Constraint("DistanceY", 5, 1, 5, 2, Q("3.03 mm")),
    Sketcher.Constraint("DistanceX", 2, 3, 10, 3, Q("9.5 mm")),
    Sketcher.Constraint("DistanceY", 2, 3, -1, 1, Q("8.45 mm")),
])
pocket11 = body3.newObject("PartDesign::Pocket", "Pocket010")
pocket11.Profile = sketch17
pocket11.Length = 10
pocket11.Reversed = True

# Sketch on XY plane
sketch18 = body3.newObject("Sketcher::SketchObject", "Sketch017")
sketch18.AttachmentSupport = (doc.getObject("XY_Plane002"), [""])
sketch18.MapMode = "FlatFace"
sketch18.AttachmentOffset = App.Placement(V(0, 0, 55), App.Rotation())
sketch18.addGeometry([
    Part.LineSegment(V(6.9, -10.8, 0), V(2.6, -10.8, 0)),  # 0
    Part.LineSegment(V(2.6, -10.8, 0), V(2.6, -8.4, 0)),  # 1
    Part.ArcOfCircle(Part.Circle(V(4.8, -8.4, 0), V(0, 0, 1), 2.2), math.radians(0), math.radians(180)),  # 2
    Part.LineSegment(V(6.9, -8.4, 0), V(6.9, -10.8, 0)),  # 3
    Part.LineSegment(V(-2.6, -10.8, 0), V(-6.9, -10.8, 0)),  # 4
    Part.LineSegment(V(-6.9, -10.8, 0), V(-6.9, -8.4, 0)),  # 5
    Part.ArcOfCircle(Part.Circle(V(-4.8, -8.4, 0), V(0, 0, 1), 2.2), math.radians(0), math.radians(180)),  # 6
    Part.LineSegment(V(-2.6, -8.4, 0), V(-2.6, -10.8, 0)),  # 7
], False)
sketch18.addConstraint([
    Sketcher.Constraint("Coincident", 0, 2, 1, 1),
    Sketcher.Constraint("Tangent", 1, 2, 2, 2),
    Sketcher.Constraint("Tangent", 2, 1, 3, 1),
    Sketcher.Constraint("Coincident", 3, 2, 0, 1),
    Sketcher.Constraint("Coincident", 4, 2, 5, 1),
    Sketcher.Constraint("Tangent", 5, 2, 6, 2),
    Sketcher.Constraint("Tangent", 6, 1, 7, 1),
    Sketcher.Constraint("Coincident", 7, 2, 4, 1),
    Sketcher.Constraint("Horizontal", 0),
    Sketcher.Constraint("Vertical", 1),
    Sketcher.Constraint("Vertical", 3),
    Sketcher.Constraint("Horizontal", 4),
    Sketcher.Constraint("Vertical", 5),
    Sketcher.Constraint("Vertical", 7),
    Sketcher.Constraint("Equal", 2, 6),
    Sketcher.Constraint("Symmetric", 2, 3, 6, 3, -2),
    Sketcher.Constraint("Horizontal", 3, 2, 4, 2),
    Sketcher.Constraint("Radius", 2, Q("2.17 mm")),
    Sketcher.Constraint("DistanceY", 1, 1, 1, 2, Q("2.33 mm")),
    Sketcher.Constraint("DistanceX", 6, 3, 2, 3, Q("9.5 mm")),
    Sketcher.Constraint("DistanceY", 2, 3, -1, 1, Q("8.45 mm")),
])
pocket12 = body3.newObject("PartDesign::Pocket", "Pocket011")
pocket12.Profile = sketch18
pocket12.Length = 9
pocket12.Reversed = True

doc.recompute()
